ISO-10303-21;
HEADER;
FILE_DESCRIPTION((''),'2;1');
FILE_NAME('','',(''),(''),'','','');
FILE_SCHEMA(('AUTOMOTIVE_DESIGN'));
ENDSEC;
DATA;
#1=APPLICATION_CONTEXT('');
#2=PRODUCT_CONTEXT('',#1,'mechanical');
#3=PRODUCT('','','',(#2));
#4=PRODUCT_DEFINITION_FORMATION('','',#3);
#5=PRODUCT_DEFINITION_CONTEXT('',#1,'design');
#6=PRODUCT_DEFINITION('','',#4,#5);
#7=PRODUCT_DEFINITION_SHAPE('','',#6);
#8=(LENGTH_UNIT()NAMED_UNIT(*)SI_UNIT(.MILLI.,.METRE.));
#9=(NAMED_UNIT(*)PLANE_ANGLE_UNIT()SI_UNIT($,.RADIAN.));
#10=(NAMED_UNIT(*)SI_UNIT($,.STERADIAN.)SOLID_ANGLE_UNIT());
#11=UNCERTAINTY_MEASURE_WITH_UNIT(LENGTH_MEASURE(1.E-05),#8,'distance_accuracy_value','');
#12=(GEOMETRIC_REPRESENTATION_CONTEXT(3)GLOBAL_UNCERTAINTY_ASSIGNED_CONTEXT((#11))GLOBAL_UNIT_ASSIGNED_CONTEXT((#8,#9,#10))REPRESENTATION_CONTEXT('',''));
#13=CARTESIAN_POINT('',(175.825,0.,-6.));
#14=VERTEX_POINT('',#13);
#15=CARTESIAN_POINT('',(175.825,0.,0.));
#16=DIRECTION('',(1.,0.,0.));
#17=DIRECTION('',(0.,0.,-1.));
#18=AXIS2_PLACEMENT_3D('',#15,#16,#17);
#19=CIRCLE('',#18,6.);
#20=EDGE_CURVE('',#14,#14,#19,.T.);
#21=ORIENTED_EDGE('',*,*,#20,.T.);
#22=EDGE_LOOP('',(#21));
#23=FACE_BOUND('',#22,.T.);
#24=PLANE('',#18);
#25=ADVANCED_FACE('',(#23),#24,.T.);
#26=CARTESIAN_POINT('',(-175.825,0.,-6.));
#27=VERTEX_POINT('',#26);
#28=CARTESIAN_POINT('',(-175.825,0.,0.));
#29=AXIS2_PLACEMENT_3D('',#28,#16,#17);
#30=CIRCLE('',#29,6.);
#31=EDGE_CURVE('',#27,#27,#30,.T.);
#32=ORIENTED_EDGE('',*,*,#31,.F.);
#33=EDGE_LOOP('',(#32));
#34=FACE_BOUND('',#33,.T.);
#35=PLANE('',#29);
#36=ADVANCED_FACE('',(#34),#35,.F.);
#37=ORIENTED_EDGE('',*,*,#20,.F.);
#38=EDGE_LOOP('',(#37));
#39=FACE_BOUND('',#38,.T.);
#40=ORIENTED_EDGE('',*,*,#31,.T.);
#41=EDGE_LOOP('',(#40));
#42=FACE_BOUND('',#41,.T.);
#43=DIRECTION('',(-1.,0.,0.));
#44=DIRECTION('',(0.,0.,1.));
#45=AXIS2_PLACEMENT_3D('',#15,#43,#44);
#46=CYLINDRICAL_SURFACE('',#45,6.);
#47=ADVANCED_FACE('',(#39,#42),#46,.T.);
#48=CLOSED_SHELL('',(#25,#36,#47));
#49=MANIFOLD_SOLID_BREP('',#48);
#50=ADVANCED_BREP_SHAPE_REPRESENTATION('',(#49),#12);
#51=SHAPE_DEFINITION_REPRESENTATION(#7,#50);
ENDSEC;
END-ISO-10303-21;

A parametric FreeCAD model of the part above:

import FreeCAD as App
import Part
import Sketcher
from FreeCAD import Vector
Q = App.Units.Quantity

doc = App.newDocument("Part")
body = doc.addObject("PartDesign::Body", "Body")

sketch1 = body.newObject("Sketcher::SketchObject", "Sketch")
sketch1.AttachmentSupport = (doc.getObject("YZ_Plane"), [""])
sketch1.MapMode = "FlatFace"
sketch1.addGeometry(Part.Circle(Vector(0, 0, 0), Vector(0, 0, 1), 6), False)
sketch1.addConstraint(Sketcher.Constraint("Coincident", 0, 3, -1, 1))
sketch1.addConstraint(Sketcher.Constraint("Diameter", 0, Q("12 mm")))
pad1 = body.newObject("PartDesign::Pad", "Pad")
pad1.Profile = sketch1
pad1.Length = 351.65
pad1.Midplane = True

doc.recompute()
